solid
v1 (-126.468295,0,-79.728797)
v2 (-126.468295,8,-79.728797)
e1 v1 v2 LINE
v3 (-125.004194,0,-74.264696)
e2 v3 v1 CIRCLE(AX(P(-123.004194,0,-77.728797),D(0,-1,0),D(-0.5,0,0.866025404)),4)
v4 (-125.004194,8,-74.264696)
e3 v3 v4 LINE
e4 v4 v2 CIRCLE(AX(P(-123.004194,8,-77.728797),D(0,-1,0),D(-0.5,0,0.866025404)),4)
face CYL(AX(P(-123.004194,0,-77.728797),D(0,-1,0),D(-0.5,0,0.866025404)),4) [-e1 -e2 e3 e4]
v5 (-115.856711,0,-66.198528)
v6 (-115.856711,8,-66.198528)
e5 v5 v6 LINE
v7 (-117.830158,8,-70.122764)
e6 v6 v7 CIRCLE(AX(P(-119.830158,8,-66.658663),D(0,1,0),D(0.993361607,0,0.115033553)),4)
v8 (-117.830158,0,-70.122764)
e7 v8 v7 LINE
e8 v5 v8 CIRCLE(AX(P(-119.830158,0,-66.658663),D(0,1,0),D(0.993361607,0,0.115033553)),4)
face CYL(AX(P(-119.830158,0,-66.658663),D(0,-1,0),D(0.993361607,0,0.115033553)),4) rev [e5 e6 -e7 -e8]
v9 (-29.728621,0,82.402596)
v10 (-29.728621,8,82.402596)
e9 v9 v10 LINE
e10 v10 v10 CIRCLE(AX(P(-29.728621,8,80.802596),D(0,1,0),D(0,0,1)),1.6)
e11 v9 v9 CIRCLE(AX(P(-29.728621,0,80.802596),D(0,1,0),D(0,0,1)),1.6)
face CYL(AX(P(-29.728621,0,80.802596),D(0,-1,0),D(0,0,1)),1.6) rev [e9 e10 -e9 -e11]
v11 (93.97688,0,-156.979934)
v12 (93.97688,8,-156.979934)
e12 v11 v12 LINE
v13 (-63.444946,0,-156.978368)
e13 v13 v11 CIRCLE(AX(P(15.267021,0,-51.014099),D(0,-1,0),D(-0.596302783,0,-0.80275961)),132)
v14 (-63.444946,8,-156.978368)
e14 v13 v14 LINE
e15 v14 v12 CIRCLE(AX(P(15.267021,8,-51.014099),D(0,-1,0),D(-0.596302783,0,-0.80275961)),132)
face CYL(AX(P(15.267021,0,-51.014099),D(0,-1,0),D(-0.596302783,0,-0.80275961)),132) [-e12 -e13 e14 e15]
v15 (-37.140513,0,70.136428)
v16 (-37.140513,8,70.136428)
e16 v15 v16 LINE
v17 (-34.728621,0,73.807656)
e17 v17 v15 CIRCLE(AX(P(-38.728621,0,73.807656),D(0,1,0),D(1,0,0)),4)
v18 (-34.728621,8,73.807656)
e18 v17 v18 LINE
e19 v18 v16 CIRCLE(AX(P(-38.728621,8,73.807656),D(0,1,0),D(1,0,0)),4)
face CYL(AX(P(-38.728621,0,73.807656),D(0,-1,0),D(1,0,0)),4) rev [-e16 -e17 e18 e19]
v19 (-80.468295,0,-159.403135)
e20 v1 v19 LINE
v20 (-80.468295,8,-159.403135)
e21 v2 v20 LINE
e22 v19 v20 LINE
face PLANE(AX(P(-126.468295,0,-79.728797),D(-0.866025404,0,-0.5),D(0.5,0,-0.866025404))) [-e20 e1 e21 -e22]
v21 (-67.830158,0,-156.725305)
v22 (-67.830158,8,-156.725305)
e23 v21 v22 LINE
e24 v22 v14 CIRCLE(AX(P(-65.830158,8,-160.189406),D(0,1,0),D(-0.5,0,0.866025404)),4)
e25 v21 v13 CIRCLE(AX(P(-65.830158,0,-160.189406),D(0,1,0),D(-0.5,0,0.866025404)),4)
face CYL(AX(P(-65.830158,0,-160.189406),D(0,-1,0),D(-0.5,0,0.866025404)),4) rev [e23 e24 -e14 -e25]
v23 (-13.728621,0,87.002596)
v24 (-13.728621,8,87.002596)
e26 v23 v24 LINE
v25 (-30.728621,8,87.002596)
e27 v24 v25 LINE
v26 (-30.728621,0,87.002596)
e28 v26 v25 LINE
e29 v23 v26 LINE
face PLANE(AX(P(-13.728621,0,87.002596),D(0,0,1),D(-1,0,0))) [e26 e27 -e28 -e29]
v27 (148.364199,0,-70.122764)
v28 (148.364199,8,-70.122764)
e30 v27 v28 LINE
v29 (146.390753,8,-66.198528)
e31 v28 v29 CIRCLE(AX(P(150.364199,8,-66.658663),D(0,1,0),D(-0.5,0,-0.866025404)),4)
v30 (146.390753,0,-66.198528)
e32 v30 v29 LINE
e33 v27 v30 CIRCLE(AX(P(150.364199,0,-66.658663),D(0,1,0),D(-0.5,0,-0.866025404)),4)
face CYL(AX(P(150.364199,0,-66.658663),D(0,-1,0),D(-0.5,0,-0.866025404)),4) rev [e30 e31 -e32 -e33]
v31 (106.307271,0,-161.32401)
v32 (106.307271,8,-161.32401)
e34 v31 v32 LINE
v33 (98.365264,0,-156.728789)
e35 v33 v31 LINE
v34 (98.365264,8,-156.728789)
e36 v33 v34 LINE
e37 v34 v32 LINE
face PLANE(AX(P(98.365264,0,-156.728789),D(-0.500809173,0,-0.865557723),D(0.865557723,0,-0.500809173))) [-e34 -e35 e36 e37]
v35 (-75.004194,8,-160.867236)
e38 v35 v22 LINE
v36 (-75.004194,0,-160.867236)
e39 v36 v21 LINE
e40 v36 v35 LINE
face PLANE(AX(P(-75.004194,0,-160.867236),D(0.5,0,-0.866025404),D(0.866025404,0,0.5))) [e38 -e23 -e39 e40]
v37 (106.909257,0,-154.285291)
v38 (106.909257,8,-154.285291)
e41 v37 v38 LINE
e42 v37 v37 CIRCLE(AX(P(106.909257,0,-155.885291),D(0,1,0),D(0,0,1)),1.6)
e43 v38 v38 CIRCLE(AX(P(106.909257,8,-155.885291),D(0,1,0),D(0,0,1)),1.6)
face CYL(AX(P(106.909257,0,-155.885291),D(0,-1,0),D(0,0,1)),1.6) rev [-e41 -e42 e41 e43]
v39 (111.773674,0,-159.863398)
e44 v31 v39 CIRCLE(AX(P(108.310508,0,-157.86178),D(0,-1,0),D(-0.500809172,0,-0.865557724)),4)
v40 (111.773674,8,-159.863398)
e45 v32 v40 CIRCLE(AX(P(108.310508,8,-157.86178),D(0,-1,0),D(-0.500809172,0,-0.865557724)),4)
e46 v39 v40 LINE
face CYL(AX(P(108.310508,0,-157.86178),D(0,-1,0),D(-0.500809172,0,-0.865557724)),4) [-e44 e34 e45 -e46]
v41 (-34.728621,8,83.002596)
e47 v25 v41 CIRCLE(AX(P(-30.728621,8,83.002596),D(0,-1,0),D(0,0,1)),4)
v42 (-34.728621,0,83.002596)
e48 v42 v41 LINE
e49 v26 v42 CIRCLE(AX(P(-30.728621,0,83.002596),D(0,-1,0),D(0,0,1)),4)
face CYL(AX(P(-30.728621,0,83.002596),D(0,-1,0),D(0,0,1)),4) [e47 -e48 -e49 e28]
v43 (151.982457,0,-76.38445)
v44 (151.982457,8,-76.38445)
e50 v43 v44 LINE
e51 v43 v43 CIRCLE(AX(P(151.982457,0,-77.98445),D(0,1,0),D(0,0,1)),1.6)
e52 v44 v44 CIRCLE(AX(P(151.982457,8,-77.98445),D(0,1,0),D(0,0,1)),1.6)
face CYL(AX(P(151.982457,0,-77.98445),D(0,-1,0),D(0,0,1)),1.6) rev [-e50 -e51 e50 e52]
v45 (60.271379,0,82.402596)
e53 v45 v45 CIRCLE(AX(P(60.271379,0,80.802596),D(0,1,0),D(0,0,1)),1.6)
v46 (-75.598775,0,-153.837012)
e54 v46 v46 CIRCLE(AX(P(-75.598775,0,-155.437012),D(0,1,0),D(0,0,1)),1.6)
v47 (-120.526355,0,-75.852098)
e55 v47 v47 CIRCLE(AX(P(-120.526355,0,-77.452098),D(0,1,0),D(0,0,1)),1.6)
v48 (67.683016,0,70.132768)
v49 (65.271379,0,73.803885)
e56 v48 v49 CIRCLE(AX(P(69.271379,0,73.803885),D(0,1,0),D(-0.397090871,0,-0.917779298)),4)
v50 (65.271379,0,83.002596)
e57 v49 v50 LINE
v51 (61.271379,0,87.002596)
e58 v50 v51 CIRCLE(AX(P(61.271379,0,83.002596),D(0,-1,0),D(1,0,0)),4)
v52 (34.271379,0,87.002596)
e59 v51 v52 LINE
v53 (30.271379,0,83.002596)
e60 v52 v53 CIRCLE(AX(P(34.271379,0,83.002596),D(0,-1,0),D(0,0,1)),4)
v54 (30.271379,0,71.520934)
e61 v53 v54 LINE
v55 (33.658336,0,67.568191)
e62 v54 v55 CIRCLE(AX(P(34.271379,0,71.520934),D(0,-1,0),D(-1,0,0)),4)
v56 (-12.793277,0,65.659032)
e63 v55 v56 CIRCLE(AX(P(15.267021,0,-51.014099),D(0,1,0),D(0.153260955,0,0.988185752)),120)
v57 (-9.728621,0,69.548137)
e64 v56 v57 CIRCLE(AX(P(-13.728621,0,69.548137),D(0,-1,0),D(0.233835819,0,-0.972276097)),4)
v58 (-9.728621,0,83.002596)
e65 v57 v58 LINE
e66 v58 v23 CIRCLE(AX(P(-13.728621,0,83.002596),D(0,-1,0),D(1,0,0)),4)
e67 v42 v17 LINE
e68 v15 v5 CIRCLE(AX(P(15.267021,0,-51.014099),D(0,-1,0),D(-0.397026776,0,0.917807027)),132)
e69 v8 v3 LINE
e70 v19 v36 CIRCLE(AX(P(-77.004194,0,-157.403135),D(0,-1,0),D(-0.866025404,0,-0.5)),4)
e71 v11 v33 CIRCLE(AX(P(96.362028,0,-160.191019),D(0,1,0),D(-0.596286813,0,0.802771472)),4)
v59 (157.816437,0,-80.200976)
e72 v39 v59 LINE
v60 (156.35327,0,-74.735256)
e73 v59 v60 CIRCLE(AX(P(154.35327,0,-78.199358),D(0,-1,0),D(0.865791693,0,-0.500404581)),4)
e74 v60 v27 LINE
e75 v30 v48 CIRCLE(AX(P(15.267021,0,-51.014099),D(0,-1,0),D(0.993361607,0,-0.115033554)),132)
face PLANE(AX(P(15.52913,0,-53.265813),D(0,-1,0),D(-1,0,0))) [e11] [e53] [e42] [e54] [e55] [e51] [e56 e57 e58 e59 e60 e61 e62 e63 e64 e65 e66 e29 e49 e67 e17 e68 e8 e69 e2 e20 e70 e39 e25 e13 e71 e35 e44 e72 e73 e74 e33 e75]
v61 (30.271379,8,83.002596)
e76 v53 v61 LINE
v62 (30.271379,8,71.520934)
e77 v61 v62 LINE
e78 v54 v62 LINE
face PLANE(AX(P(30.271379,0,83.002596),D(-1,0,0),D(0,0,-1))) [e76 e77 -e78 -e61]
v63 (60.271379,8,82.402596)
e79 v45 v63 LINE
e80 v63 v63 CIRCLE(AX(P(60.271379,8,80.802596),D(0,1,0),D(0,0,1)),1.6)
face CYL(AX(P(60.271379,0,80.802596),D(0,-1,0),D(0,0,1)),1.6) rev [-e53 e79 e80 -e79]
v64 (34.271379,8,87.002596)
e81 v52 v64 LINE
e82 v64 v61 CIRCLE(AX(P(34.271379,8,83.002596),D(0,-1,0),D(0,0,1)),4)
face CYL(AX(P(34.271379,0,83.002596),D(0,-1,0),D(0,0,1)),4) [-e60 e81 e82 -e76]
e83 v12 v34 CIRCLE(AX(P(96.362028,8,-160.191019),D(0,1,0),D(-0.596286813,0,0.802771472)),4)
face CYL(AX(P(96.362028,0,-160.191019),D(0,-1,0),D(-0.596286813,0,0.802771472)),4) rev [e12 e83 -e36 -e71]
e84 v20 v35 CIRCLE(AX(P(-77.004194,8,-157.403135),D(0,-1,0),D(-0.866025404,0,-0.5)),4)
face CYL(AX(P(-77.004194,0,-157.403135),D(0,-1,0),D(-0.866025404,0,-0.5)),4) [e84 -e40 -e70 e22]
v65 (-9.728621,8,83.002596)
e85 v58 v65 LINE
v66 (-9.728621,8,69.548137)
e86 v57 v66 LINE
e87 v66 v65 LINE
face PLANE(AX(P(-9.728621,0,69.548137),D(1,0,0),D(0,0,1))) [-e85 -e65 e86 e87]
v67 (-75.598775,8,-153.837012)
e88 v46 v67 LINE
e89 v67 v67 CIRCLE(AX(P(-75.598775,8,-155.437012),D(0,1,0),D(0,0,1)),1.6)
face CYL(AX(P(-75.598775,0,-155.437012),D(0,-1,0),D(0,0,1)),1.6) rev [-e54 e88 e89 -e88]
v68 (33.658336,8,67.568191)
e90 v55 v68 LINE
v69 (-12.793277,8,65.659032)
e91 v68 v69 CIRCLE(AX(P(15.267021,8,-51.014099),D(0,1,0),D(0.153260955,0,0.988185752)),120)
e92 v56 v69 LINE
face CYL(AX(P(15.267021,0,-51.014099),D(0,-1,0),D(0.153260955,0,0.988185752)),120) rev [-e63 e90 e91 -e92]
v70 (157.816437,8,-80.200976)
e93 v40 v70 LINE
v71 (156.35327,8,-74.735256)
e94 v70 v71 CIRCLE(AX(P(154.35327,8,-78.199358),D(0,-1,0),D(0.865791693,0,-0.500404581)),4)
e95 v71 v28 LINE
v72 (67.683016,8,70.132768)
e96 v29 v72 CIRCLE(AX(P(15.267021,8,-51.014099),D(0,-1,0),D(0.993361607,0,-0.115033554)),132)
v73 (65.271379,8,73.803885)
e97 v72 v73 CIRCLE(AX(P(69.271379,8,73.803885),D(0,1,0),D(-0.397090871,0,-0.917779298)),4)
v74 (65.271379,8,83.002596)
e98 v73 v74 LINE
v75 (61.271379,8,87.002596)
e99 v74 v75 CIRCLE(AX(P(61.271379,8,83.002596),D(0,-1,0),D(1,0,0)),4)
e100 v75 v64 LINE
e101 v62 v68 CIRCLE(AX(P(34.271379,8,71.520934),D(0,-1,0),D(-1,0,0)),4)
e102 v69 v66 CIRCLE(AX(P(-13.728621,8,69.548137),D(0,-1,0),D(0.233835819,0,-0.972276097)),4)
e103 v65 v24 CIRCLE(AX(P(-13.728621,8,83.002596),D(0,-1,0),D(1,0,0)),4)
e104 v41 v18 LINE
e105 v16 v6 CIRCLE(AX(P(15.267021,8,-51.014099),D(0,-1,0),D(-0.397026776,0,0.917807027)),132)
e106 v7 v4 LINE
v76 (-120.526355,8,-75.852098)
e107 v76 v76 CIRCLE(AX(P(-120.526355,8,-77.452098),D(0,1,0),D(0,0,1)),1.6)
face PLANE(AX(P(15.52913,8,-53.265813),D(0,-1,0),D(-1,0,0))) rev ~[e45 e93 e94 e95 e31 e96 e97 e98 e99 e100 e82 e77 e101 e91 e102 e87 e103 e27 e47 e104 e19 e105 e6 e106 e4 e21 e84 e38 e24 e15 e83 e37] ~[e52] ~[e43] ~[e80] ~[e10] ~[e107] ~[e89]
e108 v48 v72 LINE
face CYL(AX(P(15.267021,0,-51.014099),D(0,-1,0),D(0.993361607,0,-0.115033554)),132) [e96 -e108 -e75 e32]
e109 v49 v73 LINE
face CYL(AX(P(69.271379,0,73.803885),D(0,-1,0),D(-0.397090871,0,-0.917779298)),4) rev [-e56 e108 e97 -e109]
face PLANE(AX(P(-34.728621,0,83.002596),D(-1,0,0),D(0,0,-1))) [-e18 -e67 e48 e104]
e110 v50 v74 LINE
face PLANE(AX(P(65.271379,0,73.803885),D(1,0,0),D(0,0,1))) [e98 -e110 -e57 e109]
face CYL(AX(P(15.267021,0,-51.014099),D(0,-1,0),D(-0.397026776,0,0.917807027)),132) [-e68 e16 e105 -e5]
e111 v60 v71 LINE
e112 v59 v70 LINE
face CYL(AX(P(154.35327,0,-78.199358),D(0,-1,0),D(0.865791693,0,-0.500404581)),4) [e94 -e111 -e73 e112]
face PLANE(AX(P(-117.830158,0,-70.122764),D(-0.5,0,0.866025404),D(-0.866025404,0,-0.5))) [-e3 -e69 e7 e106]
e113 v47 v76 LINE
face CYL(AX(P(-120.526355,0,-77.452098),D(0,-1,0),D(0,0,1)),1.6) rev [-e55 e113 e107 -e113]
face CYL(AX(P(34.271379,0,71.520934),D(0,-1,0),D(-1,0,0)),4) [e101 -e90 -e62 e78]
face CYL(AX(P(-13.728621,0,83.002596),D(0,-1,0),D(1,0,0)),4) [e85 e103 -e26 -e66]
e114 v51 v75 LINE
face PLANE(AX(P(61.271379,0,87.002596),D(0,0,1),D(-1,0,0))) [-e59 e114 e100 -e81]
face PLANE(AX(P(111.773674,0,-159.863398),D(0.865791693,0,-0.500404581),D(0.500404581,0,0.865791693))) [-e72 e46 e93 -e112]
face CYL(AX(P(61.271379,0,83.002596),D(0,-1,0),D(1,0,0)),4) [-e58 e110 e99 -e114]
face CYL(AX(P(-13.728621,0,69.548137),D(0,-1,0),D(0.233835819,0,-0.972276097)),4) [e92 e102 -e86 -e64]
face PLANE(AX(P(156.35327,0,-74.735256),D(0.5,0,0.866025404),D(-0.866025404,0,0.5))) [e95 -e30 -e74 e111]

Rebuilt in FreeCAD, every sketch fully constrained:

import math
import FreeCAD as App
import Part
import Sketcher
from FreeCAD import Vector
Q = App.Units.Quantity

doc = App.newDocument("Part")
body = doc.addObject("PartDesign::Body", "Body")

# Sketch on XZ plane
sketch1 = body.newObject("Sketcher::SketchObject", "Sketch")
sketch1.AttachmentSupport = (doc.getObject("XZ_Plane"), [""])
sketch1.MapMode = "FlatFace"
sketch1.addGeometry([
    Part.LineSegment(Vector(-67.830158, -156.725305, 0), Vector(-75.004194, -160.867236, 0)),  # 0
    Part.ArcOfCircle(Part.Circle(Vector(-77.004194, -157.403135, 0), Vector(0, 0, 1), 4), math.radians(-150), math.radians(-60)),  # 1
    Part.LineSegment(Vector(-80.468295, -159.403135, 0), Vector(-126.468295, -79.728797, 0)),  # 2
    Part.ArcOfCircle(Part.Circle(Vector(-123.004194, -77.728797, 0), Vector(0, 0, 1), 4), math.radians(120), math.radians(210)),  # 3
    Part.LineSegment(Vector(-125.004194, -74.264696, 0), Vector(-117.830158, -70.122764, 0)),  # 4
    Part.ArcOfCircle(Part.Circle(Vector(-119.830158, -66.658663, 0), Vector(0, 0, 1), 4), math.radians(-60), math.radians(6.60556)),  # 5
    Part.ArcOfCircle(Part.Circle(Vector(15.267021, -51.014099, 0), Vector(0, 0, 1), 132), math.radians(113.392439), math.radians(186.60556)),  # 6
    Part.ArcOfCircle(Part.Circle(Vector(-38.728621, 73.807656, 0), Vector(0, 0, 1), 4), math.radians(-66.607561), math.radians(0)),  # 7
    Part.LineSegment(Vector(-34.728621, 73.807656, 0), Vector(-34.728621, 83.002596, 0)),  # 8
    Part.ArcOfCircle(Part.Circle(Vector(-30.728621, 83.002596, 0), Vector(0, 0, 1), 4), math.radians(90), math.radians(180)),  # 9
    Part.LineSegment(Vector(-30.728621, 87.002596, 0), Vector(-13.728621, 87.002596, 0)),  # 10
    Part.ArcOfCircle(Part.Circle(Vector(-13.728621, 83.002596, 0), Vector(0, 0, 1), 4), math.radians(0), math.radians(90)),  # 11
    Part.LineSegment(Vector(-9.728621, 83.002596, 0), Vector(-9.728621, 69.548137, 0)),  # 12
    Part.ArcOfCircle(Part.Circle(Vector(-13.728621, 69.548137, 0), Vector(0, 0, 1), 4), math.radians(-76.476992), math.radians(0)),  # 13
    Part.ArcOfCircle(Part.Circle(Vector(15.267021, -51.014099, 0), Vector(0, 0, 1), 120), math.radians(103.523008), math.radians(441.184049)),  # 14
    Part.ArcOfCircle(Part.Circle(Vector(34.271379, 71.520934, 0), Vector(0, 0, 1), 4), math.radians(180), math.radians(261.184049)),  # 15
    Part.LineSegment(Vector(30.271379, 71.520934, 0), Vector(30.271379, 83.002596, 0)),  # 16
    Part.ArcOfCircle(Part.Circle(Vector(34.271379, 83.002596, 0), Vector(0, 0, 1), 4), math.radians(90), math.radians(180)),  # 17
    Part.LineSegment(Vector(34.271379, 87.002596, 0), Vector(61.271379, 87.002596, 0)),  # 18
    Part.ArcOfCircle(Part.Circle(Vector(61.271379, 83.002596, 0), Vector(0, 0, 1), 4), math.radians(0), math.radians(90)),  # 19
    Part.LineSegment(Vector(65.271379, 83.002596, 0), Vector(65.271379, 73.803885, 0)),  # 20
    Part.ArcOfCircle(Part.Circle(Vector(69.271379, 73.803885, 0), Vector(0, 0, 1), 4), math.radians(180), math.radians(246.60356)),  # 21
    Part.ArcOfCircle(Part.Circle(Vector(15.267021, -51.014099, 0), Vector(0, 0, 1), 132), math.radians(-6.60556), math.radians(66.60356)),  # 22
    Part.ArcOfCircle(Part.Circle(Vector(150.364199, -66.658663, 0), Vector(0, 0, 1), 4), math.radians(173.39444), math.radians(240)),  # 23
    Part.LineSegment(Vector(148.364199, -70.122764, 0), Vector(156.35327, -74.735256, 0)),  # 24
    Part.ArcOfCircle(Part.Circle(Vector(154.35327, -78.199358, 0), Vector(0, 0, 1), 4), math.radians(-30.02677), math.radians(60)),  # 25
    Part.LineSegment(Vector(157.816437, -80.200976, 0), Vector(111.773674, -159.863398, 0)),  # 26
    Part.ArcOfCircle(Part.Circle(Vector(108.310508, -157.86178, 0), Vector(0, 0, 1), 4), math.radians(-120.053549), math.radians(-30.02677)),  # 27
    Part.LineSegment(Vector(106.307271, -161.32401, 0), Vector(98.365264, -156.728789, 0)),  # 28
    Part.ArcOfCircle(Part.Circle(Vector(96.362028, -160.191019, 0), Vector(0, 0, 1), 4), math.radians(59.946451), math.radians(126.604421)),  # 29
    Part.ArcOfCircle(Part.Circle(Vector(15.267021, -51.014099, 0), Vector(0, 0, 1), 132), math.radians(-126.60556), math.radians(-53.395579)),  # 30
    Part.ArcOfCircle(Part.Circle(Vector(-65.830158, -160.189406, 0), Vector(0, 0, 1), 4), math.radians(53.39444), math.radians(120)),  # 31
    Part.Circle(Vector(60.271379, 80.802596, 0), Vector(0, 0, 1), 1.6),  # 32
    Part.Circle(Vector(-29.728621, 80.802596, 0), Vector(0, 0, 1), 1.6),  # 33
    Part.Circle(Vector(151.982457, -77.98445, 0), Vector(0, 0, 1), 1.6),  # 34
    Part.Circle(Vector(106.909257, -155.885291, 0), Vector(0, 0, 1), 1.6),  # 35
    Part.Circle(Vector(-120.526355, -77.452098, 0), Vector(0, 0, 1), 1.6),  # 36
    Part.Circle(Vector(-75.598775, -155.437012, 0), Vector(0, 0, 1), 1.6),  # 37
], False)
sketch1.addConstraint([
    Sketcher.Constraint("Tangent", 0, 2, 1, 2),
    Sketcher.Constraint("Tangent", 1, 1, 2, 1),
    Sketcher.Constraint("Tangent", 2, 2, 3, 2),
    Sketcher.Constraint("Tangent", 3, 1, 4, 1),
    Sketcher.Constraint("Tangent", 4, 2, 5, 1),
    Sketcher.Constraint("Tangent", 5, 2, 6, 2),
    Sketcher.Constraint("Tangent", 6, 1, 7, 1),
    Sketcher.Constraint("Tangent", 7, 2, 8, 1),
    Sketcher.Constraint("Tangent", 8, 2, 9, 2),
    Sketcher.Constraint("Tangent", 9, 1, 10, 1),
    Sketcher.Constraint("Tangent", 10, 2, 11, 2),
    Sketcher.Constraint("Tangent", 11, 1, 12, 1),
    Sketcher.Constraint("Tangent", 12, 2, 13, 2),
    Sketcher.Constraint("Tangent", 13, 1, 14, 1),
    Sketcher.Constraint("Tangent", 14, 2, 15, 2),
    Sketcher.Constraint("Tangent", 15, 1, 16, 1),
    Sketcher.Constraint("Tangent", 16, 2, 17, 2),
    Sketcher.Constraint("Tangent", 17, 1, 18, 1),
    Sketcher.Constraint("Tangent", 18, 2, 19, 2),
    Sketcher.Constraint("Tangent", 19, 1, 20, 1),
    Sketcher.Constraint("Tangent", 20, 2, 21, 1),
    Sketcher.Constraint("Tangent", 21, 2, 22, 2),
    Sketcher.Constraint("Tangent", 22, 1, 23, 1),
    Sketcher.Constraint("Tangent", 23, 2, 24, 1),
    Sketcher.Constraint("Tangent", 24, 2, 25, 2),
    Sketcher.Constraint("Tangent", 25, 1, 26, 1),
    Sketcher.Constraint("Tangent", 26, 2, 27, 2),
    Sketcher.Constraint("Tangent", 27, 1, 28, 1),
    Sketcher.Constraint("Tangent", 28, 2, 29, 1),
    Sketcher.Constraint("Tangent", 29, 2, 30, 2),
    Sketcher.Constraint("Tangent", 30, 1, 31, 1),
    Sketcher.Constraint("Tangent", 31, 2, 0, 1),
    Sketcher.Constraint("Vertical", 8),
    Sketcher.Constraint("Horizontal", 10),
    Sketcher.Constraint("Vertical", 12),
    Sketcher.Constraint("Vertical", 16),
    Sketcher.Constraint("Horizontal", 18),
    Sketcher.Constraint("Vertical", 20),
    Sketcher.Constraint("Coincident", 14, 3, 6, 3),
    Sketcher.Constraint("Coincident", 22, 3, 6, 3),
    Sketcher.Constraint("Coincident", 30, 3, 6, 3),
    Sketcher.Constraint("Equal", 1, 3),
    Sketcher.Constraint("Equal", 3, 5),
    Sketcher.Constraint("Equal", 5, 7),
    Sketcher.Constraint("Equal", 7, 9),
    Sketcher.Constraint("Equal", 9, 11),
    Sketcher.Constraint("Equal", 11, 13),
    Sketcher.Constraint("Equal", 13, 15),
    Sketcher.Constraint("Equal", 15, 17),
    Sketcher.Constraint("Equal", 17, 19),
    Sketcher.Constraint("Equal", 19, 21),
    Sketcher.Constraint("Equal", 6, 22),
    Sketcher.Constraint("Equal", 21, 23),
    Sketcher.Constraint("Equal", 23, 25),
    Sketcher.Constraint("Equal", 25, 27),
    Sketcher.Constraint("Equal", 27, 29),
    Sketcher.Constraint("Equal", 22, 30),
    Sketcher.Constraint("Equal", 29, 31),
    Sketcher.Constraint("Equal", 32, 33),
    Sketcher.Constraint("Equal", 33, 34),
    Sketcher.Constraint("Equal", 34, 35),
    Sketcher.Constraint("Equal", 35, 36),
    Sketcher.Constraint("Equal", 36, 37),
    Sketcher.Constraint("Perpendicular", 0, 2),
    Sketcher.Constraint("Perpendicular", 2, 4),
    Sketcher.Constraint("Horizontal", 11, 3, 17, 3),
    Sketcher.Constraint("Horizontal", 5, 3, 23, 3),
    Sketcher.Constraint("Horizontal", 32, 3, 33, 3),
    Sketcher.Constraint("Horizontal", 4, 2, 23, 2),
    Sketcher.Constraint("Equal", 0, 4),
    Sketcher.Constraint("Radius", 1, Q("4 mm")),
    Sketcher.Constraint("Radius", 6, Q("132 mm")),
    Sketcher.Constraint("Radius", 14, Q("120 mm")),
    Sketcher.Constraint("Diameter", 32, Q("3.2 mm")),
    Sketcher.Constraint("DistanceX", 10, 1, 10, 2, Q("17 mm")),
    Sketcher.Constraint("DistanceX", 18, 1, 18, 2, Q("27 mm")),
    Sketcher.Constraint("Angle", 0, Q("-150 deg")),
    Sketcher.Constraint("Distance", 2, Q("92 mm")),
    Sketcher.Constraint("DistanceX", 13, 3, 15, 3, Q("48 mm")),
    Sketcher.Constraint("DistanceX", 32, 3, 19, 3, Q("1 mm")),
    Sketcher.Constraint("DistanceX", 9, 3, 33, 3, Q("1 mm")),
    Sketcher.Constraint("DistanceY", 32, 3, 19, 3, Q("2.2 mm")),
    Sketcher.Constraint("DistanceY", 36, 3, 22, 3, Q("26.437999 mm")),
    Sketcher.Constraint("DistanceY", 8, 1, 8, 2, Q("9.194939 mm")),
    Sketcher.Constraint("DistanceY", 12, 2, 12, 1, Q("13.454459 mm")),
    Sketcher.Constraint("DistanceY", 6, 3, -1, 1, Q("51.014099 mm")),
    Sketcher.Constraint("DistanceX", -1, 1, 23, 3, Q("150.364199 mm")),
    Sketcher.Constraint("DistanceY", 3, 3, 6, 3, Q("26.714698 mm")),
    Sketcher.Constraint("DistanceX", 35, 3, 34, 3, Q("45.0732 mm")),
    Sketcher.Constraint("DistanceX", -1, 1, 25, 3, Q("154.35327 mm")),
    Sketcher.Constraint("DistanceY", 27, 3, -1, 1, Q("157.86178 mm")),
    Sketcher.Constraint("DistanceY", 29, 3, -1, 1, Q("160.191019 mm")),
    Sketcher.Constraint("DistanceY", 34, 3, -1, 1, Q("77.98445 mm")),
    Sketcher.Constraint("DistanceY", 35, 3, -1, 1, Q("155.885291 mm")),
    Sketcher.Constraint("DistanceY", 37, 3, -1, 1, Q("155.437012 mm")),
    Sketcher.Constraint("DistanceX", -1, 1, 27, 1, Q("106.307271 mm")),
    Sketcher.Constraint("DistanceX", 27, 3, 34, 3, Q("43.671949 mm")),
    Sketcher.Constraint("DistanceX", 3, 3, 36, 3, Q("2.477838 mm")),
    Sketcher.Constraint("DistanceX", 1, 3, 37, 3, Q("1.405418 mm")),
])
pad1 = body.newObject("PartDesign::Pad", "Pad")
pad1.Profile = sketch1
pad1.Length = 8
pad1.Reversed = True

doc.recompute()
